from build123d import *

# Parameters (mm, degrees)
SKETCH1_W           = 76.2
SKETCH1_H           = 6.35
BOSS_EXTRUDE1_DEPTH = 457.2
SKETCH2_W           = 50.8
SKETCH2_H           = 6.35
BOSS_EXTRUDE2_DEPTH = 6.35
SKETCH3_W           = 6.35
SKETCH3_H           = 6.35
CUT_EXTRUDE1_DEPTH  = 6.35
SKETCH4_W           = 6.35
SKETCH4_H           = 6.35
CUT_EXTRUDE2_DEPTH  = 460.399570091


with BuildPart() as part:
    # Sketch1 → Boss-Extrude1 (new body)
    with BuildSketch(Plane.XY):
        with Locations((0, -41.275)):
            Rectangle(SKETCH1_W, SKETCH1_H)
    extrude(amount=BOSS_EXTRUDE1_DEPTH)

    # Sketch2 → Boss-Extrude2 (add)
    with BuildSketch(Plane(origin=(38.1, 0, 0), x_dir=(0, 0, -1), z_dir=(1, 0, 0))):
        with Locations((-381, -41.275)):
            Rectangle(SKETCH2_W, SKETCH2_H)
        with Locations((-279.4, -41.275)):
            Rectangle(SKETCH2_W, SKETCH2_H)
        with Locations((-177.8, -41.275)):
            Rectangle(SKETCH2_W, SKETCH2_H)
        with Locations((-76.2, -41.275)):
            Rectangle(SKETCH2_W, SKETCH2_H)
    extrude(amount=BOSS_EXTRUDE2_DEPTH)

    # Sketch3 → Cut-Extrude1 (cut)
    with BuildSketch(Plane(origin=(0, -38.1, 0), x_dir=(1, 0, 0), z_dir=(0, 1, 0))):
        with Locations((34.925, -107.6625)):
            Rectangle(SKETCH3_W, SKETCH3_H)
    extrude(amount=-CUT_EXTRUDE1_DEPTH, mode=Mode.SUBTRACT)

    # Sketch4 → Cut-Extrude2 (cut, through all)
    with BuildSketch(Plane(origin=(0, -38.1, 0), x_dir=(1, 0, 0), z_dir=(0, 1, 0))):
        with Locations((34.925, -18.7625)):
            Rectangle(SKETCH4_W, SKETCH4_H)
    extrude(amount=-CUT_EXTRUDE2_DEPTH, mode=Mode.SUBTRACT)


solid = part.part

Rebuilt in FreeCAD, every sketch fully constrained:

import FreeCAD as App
import Part
import Sketcher

V = App.Vector
Q = App.Units.Quantity


def add_polygon(sketch, points):
    """Adds a closed chain of lines whose ends are joined by coincident constraints."""
    first, n = sketch.GeometryCount, len(points)
    for a, b in zip(points, points[1:] + points[:1]):
        sketch.addGeometry(Part.LineSegment(App.Vector(*a, 0), App.Vector(*b, 0)), False)
    for i in range(n):
        sketch.addConstraint(Sketcher.Constraint("Coincident", first + i, 2, first + (i + 1) % n, 1))

doc = App.newDocument("Part")
body = doc.addObject("PartDesign::Body", "Body")

sketch1 = body.newObject("Sketcher::SketchObject", "Sketch")
sketch1.AttachmentSupport = (doc.getObject("XY_Plane"), [""])
sketch1.MapMode = "FlatFace"
add_polygon(sketch1, [(-38, -38), (-38, -44), (38, -44), (38, -38)])
sketch1.addConstraint([
    Sketcher.Constraint("Vertical", 0),
    Sketcher.Constraint("Horizontal", 1),
    Sketcher.Constraint("Vertical", 2),
    Sketcher.Constraint("Horizontal", 3),
    Sketcher.Constraint("DistanceX", 1, 1, 1, 2, Q("3 in")),
    Sketcher.Constraint("DistanceY", 0, 2, 0, 1, Q("0.25 in")),
    Sketcher.Constraint("DistanceX", 0, 2, -1, 1, Q("1.5 in")),
    Sketcher.Constraint("DistanceY", 2, 2, -1, 1, Q("1.5 in")),
])
pad1 = body.newObject("PartDesign::Pad", "Pad")
pad1.Profile = sketch1
pad1.Length = Q("18 in")

sketch2 = body.newObject("Sketcher::SketchObject", "Sketch001")
sketch2.AttachmentSupport = (doc.getObject("YZ_Plane"), [""])
sketch2.MapMode = "FlatFace"
sketch2.AttachmentOffset = App.Placement(V(0, 0, 1.5 * 25.4), App.Rotation())
add_polygon(sketch2, [(-38, 406), (-44, 406), (-44, 356), (-38, 356)])
add_polygon(sketch2, [(-38, 305), (-44, 305), (-44, 254), (-38, 254)])
add_polygon(sketch2, [(-38, 203), (-44, 203), (-44, 152), (-38, 152)])
add_polygon(sketch2, [(-38, 102), (-44, 102), (-44, 51), (-38, 51)])
sketch2.addConstraint([
    Sketcher.Constraint("Horizontal", 0),
    Sketcher.Constraint("Vertical", 1),
    Sketcher.Constraint("Horizontal", 2),
    Sketcher.Constraint("Vertical", 3),
    Sketcher.Constraint("Horizontal", 4),
    Sketcher.Constraint("Vertical", 5),
    Sketcher.Constraint("Horizontal", 6),
    Sketcher.Constraint("Vertical", 7),
    Sketcher.Constraint("Horizontal", 8),
    Sketcher.Constraint("Vertical", 9),
    Sketcher.Constraint("Horizontal", 10),
    Sketcher.Constraint("Vertical", 11),
    Sketcher.Constraint("Horizontal", 12),
    Sketcher.Constraint("Vertical", 13),
    Sketcher.Constraint("Horizontal", 14),
    Sketcher.Constraint("Vertical", 15),
    Sketcher.Constraint("Vertical", 1, 2, 4, 2),
    Sketcher.Constraint("Vertical", 3, 2, 6, 2),
    Sketcher.Constraint("Vertical", 5, 2, 8, 2),
    Sketcher.Constraint("Vertical", 7, 2, 10, 2),
    Sketcher.Constraint("Vertical", 9, 2, 12, 2),
    Sketcher.Constraint("Vertical", 11, 2, 14, 2),
    Sketcher.Constraint("Equal", 3, 5),
    Sketcher.Constraint("Equal", 7, 9),
    Sketcher.Constraint("Equal", 11, 13),
    Sketcher.Constraint("DistanceY", 1, 2, 1, 1, Q("2 in")),
    Sketcher.Constraint("DistanceY", -1, 1, 0, 2, Q("16 in")),
    Sketcher.Constraint("DistanceY", -1, 1, 4, 2, Q("12 in")),
    Sketcher.Constraint("DistanceY", -1, 1, 8, 2, Q("8 in")),
    Sketcher.Constraint("DistanceY", -1, 1, 12, 2, Q("4 in")),
    Sketcher.Constraint("DistanceX", 0, 2, 0, 1, Q("0.25 in")),
    Sketcher.Constraint("DistanceX", 2, 2, -1, 1, Q("1.5 in")),
])
pad2 = body.newObject("PartDesign::Pad", "Pad001")
pad2.Profile = sketch2
pad2.Length = Q("0.25 in")

sketch3 = body.newObject("Sketcher::SketchObject", "Sketch002")
sketch3.AttachmentSupport = (doc.getObject("XZ_Plane"), [""])
sketch3.MapMode = "FlatFace"
sketch3.AttachmentOffset = App.Placement(V(0, 0, 1.5 * 25.4), App.Rotation())
add_polygon(sketch3, [(32, 104), (32, 111), (38, 111), (38, 104)])
sketch3.addConstraint([
    Sketcher.Constraint("Vertical", 0),
    Sketcher.Constraint("Horizontal", 1),
    Sketcher.Constraint("Vertical", 2),
    Sketcher.Constraint("Horizontal", 3),
    Sketcher.Constraint("Equal", 3, 0),
    Sketcher.Constraint("DistanceX", 1, 1, 1, 2, Q("0.25 in")),
    Sketcher.Constraint("DistanceX", -1, 1, 1, 2, Q("1.5 in")),
    Sketcher.Constraint("DistanceY", -1, 1, 0, 2, 110.8375),
])
pocket1 = body.newObject("PartDesign::Pocket", "Pocket")
pocket1.Profile = sketch3
pocket1.Length = Q("0.25 in")
pocket1.Reversed = True

sketch4 = body.newObject("Sketcher::SketchObject", "Sketch003")
sketch4.AttachmentSupport = (doc.getObject("XZ_Plane"), [""])
sketch4.MapMode = "FlatFace"
sketch4.AttachmentOffset = App.Placement(V(0, 0, 1.5 * 25.4), App.Rotation())
add_polygon(sketch4, [(32, 16), (32, 22), (38, 22), (38, 16)])
sketch4.addConstraint([
    Sketcher.Constraint("Vertical", 0),
    Sketcher.Constraint("Horizontal", 1),
    Sketcher.Constraint("Vertical", 2),
    Sketcher.Constraint("Horizontal", 3),
    Sketcher.Constraint("Equal", 3, 0),
    Sketcher.Constraint("DistanceX", 1, 1, 1, 2, Q("0.25 in")),
    Sketcher.Constraint("DistanceX", -1, 1, 1, 2, Q("1.5 in")),
    Sketcher.Constraint("DistanceY", -1, 1, 0, 2, 21.9375),
])
pocket2 = body.newObject("PartDesign::Pocket", "Pocket001")
pocket2.Profile = sketch4
pocket2.Type = "ThroughAll"
pocket2.Reversed = True

doc.recompute()
